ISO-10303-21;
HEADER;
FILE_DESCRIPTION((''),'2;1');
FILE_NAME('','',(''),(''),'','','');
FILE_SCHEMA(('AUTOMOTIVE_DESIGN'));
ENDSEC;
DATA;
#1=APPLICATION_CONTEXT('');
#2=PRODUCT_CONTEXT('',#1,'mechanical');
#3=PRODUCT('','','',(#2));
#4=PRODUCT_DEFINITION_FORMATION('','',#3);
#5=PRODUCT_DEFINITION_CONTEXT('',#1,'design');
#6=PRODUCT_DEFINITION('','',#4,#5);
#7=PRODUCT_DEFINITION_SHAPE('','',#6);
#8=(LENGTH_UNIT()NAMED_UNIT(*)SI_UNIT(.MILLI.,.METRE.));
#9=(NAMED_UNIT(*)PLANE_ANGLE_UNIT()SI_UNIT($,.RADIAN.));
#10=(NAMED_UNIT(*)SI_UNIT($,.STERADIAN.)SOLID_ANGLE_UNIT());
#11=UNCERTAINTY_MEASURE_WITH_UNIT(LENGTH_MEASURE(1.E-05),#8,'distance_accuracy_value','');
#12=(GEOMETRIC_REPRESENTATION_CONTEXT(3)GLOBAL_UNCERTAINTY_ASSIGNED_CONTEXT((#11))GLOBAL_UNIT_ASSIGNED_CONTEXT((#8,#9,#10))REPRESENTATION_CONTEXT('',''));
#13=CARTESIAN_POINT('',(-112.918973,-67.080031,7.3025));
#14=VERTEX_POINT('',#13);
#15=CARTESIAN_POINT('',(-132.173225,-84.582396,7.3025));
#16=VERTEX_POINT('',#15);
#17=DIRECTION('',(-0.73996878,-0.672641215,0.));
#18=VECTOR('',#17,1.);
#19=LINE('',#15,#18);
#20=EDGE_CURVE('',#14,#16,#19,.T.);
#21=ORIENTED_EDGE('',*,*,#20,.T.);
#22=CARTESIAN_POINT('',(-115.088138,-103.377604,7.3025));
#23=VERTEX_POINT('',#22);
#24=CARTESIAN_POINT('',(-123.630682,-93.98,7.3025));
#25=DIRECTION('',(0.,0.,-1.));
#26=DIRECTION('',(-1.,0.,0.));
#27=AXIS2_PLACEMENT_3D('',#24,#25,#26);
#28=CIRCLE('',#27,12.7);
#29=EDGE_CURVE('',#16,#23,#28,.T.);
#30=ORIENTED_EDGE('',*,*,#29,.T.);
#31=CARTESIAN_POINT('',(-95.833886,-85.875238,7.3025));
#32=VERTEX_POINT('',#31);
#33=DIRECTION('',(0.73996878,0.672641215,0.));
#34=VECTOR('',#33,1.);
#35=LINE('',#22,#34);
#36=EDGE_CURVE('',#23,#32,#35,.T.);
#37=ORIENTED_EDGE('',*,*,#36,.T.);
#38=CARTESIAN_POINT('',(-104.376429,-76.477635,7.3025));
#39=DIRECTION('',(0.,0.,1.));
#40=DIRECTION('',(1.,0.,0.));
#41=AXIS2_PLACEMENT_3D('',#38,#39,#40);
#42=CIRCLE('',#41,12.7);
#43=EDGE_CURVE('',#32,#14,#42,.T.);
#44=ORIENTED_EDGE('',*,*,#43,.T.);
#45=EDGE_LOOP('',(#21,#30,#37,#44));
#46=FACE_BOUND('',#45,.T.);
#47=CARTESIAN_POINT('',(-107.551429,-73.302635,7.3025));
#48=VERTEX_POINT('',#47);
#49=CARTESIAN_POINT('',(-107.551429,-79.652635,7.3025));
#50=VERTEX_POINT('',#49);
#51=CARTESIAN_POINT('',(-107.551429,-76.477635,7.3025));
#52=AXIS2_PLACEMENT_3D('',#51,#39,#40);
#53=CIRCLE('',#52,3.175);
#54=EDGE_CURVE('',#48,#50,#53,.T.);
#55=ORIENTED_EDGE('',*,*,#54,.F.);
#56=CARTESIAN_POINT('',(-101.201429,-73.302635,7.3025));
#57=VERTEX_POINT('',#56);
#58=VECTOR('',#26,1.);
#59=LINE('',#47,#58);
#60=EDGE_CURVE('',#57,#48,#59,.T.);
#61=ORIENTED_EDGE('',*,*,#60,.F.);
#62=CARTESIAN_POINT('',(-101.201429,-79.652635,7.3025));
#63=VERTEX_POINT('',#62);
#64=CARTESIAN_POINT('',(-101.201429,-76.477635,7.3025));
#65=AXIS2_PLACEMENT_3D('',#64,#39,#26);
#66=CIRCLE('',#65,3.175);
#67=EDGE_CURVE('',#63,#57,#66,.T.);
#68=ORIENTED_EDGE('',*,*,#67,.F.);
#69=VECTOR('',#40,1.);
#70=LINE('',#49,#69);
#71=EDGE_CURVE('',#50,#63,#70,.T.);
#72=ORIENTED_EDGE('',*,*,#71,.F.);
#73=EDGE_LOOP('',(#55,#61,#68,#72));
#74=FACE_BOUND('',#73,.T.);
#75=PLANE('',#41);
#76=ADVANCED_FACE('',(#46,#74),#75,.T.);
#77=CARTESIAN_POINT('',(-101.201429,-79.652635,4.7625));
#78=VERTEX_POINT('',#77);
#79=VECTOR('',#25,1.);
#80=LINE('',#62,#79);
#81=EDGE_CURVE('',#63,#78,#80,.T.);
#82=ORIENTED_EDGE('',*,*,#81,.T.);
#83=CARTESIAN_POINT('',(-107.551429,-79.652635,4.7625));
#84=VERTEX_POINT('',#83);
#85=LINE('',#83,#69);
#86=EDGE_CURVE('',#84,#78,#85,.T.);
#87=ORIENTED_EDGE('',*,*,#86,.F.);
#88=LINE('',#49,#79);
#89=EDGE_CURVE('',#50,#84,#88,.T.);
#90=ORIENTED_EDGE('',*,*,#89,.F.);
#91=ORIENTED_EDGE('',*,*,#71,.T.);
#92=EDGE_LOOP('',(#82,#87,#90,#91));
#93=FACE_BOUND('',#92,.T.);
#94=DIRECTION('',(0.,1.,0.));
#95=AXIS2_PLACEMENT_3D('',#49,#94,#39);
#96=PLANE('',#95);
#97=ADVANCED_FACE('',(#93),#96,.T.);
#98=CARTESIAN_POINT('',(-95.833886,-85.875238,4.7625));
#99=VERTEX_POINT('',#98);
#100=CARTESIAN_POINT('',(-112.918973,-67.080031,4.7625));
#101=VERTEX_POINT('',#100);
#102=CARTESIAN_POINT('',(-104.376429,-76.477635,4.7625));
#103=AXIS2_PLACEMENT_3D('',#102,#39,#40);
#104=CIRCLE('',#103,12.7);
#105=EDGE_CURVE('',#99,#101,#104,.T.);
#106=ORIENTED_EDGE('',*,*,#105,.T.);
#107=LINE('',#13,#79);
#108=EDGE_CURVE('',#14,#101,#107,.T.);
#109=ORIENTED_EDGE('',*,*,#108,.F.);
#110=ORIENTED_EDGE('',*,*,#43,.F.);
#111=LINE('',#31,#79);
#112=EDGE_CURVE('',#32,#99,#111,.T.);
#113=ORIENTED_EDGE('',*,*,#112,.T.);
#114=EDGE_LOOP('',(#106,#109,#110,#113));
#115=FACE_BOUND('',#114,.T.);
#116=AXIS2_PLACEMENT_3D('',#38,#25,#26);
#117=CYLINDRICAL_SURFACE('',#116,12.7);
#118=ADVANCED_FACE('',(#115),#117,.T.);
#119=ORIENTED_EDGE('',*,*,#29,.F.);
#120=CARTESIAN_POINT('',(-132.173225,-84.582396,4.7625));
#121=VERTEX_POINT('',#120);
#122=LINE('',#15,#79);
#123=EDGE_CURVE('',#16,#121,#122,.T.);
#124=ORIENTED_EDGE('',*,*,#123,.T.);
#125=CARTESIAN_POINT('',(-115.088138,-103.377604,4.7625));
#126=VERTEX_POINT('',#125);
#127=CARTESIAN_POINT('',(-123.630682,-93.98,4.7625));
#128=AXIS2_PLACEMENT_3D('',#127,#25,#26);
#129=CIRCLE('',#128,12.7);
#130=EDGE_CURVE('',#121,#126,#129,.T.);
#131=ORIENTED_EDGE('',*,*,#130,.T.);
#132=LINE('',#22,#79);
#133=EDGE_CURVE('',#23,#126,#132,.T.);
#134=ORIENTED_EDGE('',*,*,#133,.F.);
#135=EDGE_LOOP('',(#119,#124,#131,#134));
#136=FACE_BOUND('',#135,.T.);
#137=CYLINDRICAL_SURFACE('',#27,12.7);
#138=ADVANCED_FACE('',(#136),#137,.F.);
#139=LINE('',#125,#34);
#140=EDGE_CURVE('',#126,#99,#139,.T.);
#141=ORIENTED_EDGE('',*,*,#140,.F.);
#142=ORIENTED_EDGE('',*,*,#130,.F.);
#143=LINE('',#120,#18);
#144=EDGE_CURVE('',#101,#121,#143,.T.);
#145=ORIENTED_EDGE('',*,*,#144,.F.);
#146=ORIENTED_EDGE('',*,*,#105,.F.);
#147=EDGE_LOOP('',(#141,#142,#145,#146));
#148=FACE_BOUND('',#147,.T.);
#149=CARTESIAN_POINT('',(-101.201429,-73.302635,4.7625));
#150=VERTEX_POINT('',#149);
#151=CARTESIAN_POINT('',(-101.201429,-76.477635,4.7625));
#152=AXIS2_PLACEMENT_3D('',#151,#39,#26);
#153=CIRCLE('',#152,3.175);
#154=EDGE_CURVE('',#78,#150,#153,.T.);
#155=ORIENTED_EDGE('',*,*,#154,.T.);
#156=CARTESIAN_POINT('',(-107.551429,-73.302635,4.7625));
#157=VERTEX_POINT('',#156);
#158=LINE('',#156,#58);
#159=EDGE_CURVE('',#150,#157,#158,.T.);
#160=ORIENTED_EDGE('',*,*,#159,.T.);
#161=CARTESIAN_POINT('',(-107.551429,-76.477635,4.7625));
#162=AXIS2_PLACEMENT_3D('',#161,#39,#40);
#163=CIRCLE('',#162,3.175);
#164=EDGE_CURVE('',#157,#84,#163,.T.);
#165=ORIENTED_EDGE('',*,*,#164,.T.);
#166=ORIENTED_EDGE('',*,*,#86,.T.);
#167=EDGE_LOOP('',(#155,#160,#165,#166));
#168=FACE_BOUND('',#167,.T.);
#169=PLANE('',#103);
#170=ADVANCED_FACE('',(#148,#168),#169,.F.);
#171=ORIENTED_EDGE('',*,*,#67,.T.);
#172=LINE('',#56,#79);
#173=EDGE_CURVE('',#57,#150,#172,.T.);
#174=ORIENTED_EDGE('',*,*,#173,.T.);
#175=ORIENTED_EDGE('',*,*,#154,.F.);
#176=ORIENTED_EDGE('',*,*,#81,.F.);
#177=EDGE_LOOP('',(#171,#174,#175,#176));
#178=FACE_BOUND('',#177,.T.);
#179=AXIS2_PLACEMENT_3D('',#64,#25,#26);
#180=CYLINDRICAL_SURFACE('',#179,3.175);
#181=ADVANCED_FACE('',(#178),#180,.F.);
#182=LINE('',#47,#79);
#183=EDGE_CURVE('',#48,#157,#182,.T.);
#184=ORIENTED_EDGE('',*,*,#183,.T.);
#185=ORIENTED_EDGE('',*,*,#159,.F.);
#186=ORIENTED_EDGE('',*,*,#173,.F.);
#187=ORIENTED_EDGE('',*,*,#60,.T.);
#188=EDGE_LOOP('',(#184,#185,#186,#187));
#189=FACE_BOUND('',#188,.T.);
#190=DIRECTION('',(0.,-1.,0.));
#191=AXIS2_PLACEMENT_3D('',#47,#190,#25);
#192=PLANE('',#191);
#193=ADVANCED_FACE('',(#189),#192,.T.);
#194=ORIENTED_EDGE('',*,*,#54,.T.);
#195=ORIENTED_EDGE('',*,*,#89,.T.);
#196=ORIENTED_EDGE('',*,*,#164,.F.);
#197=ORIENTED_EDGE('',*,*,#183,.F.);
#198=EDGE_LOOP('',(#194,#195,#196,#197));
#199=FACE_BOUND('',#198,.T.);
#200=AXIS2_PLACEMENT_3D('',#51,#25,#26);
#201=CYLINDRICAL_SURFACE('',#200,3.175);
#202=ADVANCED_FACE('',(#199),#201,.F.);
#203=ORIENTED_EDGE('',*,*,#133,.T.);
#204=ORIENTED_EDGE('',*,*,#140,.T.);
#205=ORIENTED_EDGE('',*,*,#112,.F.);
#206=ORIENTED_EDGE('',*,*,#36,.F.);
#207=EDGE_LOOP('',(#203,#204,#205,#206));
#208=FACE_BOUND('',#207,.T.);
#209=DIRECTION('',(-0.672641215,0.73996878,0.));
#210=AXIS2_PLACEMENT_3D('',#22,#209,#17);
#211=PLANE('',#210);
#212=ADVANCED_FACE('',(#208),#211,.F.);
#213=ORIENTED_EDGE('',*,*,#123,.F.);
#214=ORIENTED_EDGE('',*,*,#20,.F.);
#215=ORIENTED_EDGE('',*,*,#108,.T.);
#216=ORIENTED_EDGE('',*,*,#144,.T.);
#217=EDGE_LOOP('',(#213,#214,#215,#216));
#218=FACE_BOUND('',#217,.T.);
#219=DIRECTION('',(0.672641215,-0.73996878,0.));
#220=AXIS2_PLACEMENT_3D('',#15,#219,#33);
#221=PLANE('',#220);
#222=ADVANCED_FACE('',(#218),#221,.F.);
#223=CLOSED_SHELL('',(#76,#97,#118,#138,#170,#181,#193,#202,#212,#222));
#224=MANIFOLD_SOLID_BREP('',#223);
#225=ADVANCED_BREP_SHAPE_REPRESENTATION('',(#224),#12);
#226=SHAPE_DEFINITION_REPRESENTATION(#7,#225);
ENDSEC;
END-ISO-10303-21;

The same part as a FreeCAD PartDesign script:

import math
import FreeCAD as App
import Part
import Sketcher
Q = App.Units.Quantity

doc = App.newDocument("Part")
body = doc.addObject("PartDesign::Body", "Body")

# Sketch on XY plane
sketch1 = body.newObject("Sketcher::SketchObject", "Sketch")
sketch1.AttachmentSupport = (doc.getObject("XY_Plane"), [""])
sketch1.MapMode = "FlatFace"
sketch1.AttachmentOffset = App.Placement(App.Vector(0, 0, 0.1875 * 25.4), App.Rotation())
sketch1.addGeometry(Part.LineSegment(App.Vector(-112.9, -67.1, 0), App.Vector(-132.2, -84.6, 0)), False)
sketch1.addGeometry(Part.ArcOfCircle(Part.Circle(App.Vector(-123.6, -94, 0), App.Vector(0, 0, 1), 12.7), math.radians(-48), math.radians(132)), False)
sketch1.addGeometry(Part.LineSegment(App.Vector(-115.1, -103.4, 0), App.Vector(-95.8, -85.9, 0)), False)
sketch1.addGeometry(Part.ArcOfCircle(Part.Circle(App.Vector(-104.4, -76.5, 0), App.Vector(0, 0, 1), 12.7), math.radians(-48), math.radians(132)), False)
sketch1.addGeometry(Part.ArcOfCircle(Part.Circle(App.Vector(-107.6, -76.5, 0), App.Vector(0, 0, 1), 3.2), math.radians(90), math.radians(270)), False)
sketch1.addGeometry(Part.LineSegment(App.Vector(-107.6, -73.3, 0), App.Vector(-101.2, -73.3, 0)), False)
sketch1.addGeometry(Part.ArcOfCircle(Part.Circle(App.Vector(-101.2, -76.5, 0), App.Vector(0, 0, 1), 3.2), math.radians(-90), math.radians(90)), False)
sketch1.addGeometry(Part.LineSegment(App.Vector(-101.2, -79.7, 0), App.Vector(-107.6, -79.7, 0)), False)
sketch1.addConstraint(Sketcher.Constraint("Tangent", 0, 2, 1, 2))
sketch1.addConstraint(Sketcher.Constraint("Tangent", 1, 1, 2, 1))
sketch1.addConstraint(Sketcher.Constraint("Tangent", 2, 2, 3, 1))
sketch1.addConstraint(Sketcher.Constraint("Tangent", 3, 2, 0, 1))
sketch1.addConstraint(Sketcher.Constraint("Tangent", 4, 1, 5, 1))
sketch1.addConstraint(Sketcher.Constraint("Tangent", 5, 2, 6, 2))
sketch1.addConstraint(Sketcher.Constraint("Tangent", 6, 1, 7, 1))
sketch1.addConstraint(Sketcher.Constraint("Tangent", 7, 2, 4, 2))
sketch1.addConstraint(Sketcher.Constraint("Horizontal", 5))
sketch1.addConstraint(Sketcher.Constraint("Horizontal", 7))
sketch1.addConstraint(Sketcher.Constraint("Equal", 1, 3))
sketch1.addConstraint(Sketcher.Constraint("Horizontal", 3, 3, 4, 3))
sketch1.addConstraint(Sketcher.Constraint("Radius", 1, Q("0.5 in")))
sketch1.addConstraint(Sketcher.Constraint("Radius", 4, Q("0.125 in")))
sketch1.addConstraint(Sketcher.Constraint("DistanceX", 5, 1, 5, 2, Q("0.25 in")))
sketch1.addConstraint(Sketcher.Constraint("DistanceY", 1, 3, -1, 1, Q("3.7 in")))
sketch1.addConstraint(Sketcher.Constraint("DistanceX", 4, 3, 3, 3, Q("0.125 in")))
sketch1.addConstraint(Sketcher.Constraint("Distance", 0, Q("26.020358 mm")))
sketch1.addConstraint(Sketcher.Constraint("DistanceX", 1, 3, -1, 1, Q("123.630682 mm")))
sketch1.addConstraint(Sketcher.Constraint("DistanceX", 3, 3, -1, 1, Q("104.376429 mm")))
pad1 = body.newObject("PartDesign::Pad", "Pad")
pad1.Profile = sketch1
pad1.Length = Q("0.1 in")

doc.recompute()
